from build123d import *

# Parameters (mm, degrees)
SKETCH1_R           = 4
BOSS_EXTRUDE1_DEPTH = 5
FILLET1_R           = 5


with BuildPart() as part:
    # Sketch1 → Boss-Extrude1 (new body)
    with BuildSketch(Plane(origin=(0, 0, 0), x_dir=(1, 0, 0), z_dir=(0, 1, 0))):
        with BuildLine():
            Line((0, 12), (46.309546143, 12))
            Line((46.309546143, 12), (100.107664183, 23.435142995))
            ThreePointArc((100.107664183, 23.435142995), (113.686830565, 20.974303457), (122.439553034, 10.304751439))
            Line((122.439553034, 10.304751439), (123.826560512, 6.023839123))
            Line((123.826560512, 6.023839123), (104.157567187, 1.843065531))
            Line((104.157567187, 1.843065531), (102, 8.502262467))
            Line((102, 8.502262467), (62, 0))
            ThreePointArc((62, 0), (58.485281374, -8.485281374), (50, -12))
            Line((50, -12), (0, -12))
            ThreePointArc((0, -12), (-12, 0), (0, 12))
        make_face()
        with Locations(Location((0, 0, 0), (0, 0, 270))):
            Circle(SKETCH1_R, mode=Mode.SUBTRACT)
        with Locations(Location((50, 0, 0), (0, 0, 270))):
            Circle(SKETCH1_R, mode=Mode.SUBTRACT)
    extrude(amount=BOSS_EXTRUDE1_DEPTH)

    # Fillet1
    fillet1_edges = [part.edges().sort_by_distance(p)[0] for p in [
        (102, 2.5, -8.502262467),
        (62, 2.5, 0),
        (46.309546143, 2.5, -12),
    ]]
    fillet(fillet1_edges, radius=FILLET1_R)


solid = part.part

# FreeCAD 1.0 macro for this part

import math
import FreeCAD as App
import Part
import Sketcher
Q = App.Units.Quantity


def edges_at(feature, points):
    """Names of the edges that pass closest to the given points."""
    edges = feature.Shape.Edges
    near = lambda p: min(range(len(edges)), key=lambda i: edges[i].distToShape(Part.Vertex(*p))[0])
    return sorted({f"Edge{near(p) + 1}" for p in points})

doc = App.newDocument("Part")
body = doc.addObject("PartDesign::Body", "Body")

# Sketch on XZ plane
sketch1 = body.newObject("Sketcher::SketchObject", "Sketch")
sketch1.AttachmentSupport = (doc.getObject("XZ_Plane"), [""])
sketch1.MapMode = "FlatFace"
sketch1.addGeometry(Part.LineSegment(App.Vector(46.3, -12, 0), App.Vector(0, -12, 0)), False)
sketch1.addGeometry(Part.ArcOfCircle(Part.Circle(App.Vector(0, 0, 0), App.Vector(0, 0, 1), 12), math.radians(90), math.radians(270)), False)
sketch1.addGeometry(Part.LineSegment(App.Vector(0, 12, 0), App.Vector(50, 12, 0)), False)
sketch1.addGeometry(Part.ArcOfCircle(Part.Circle(App.Vector(50, 0, 0), App.Vector(0, 0, 1), 12), math.radians(0), math.radians(90)), False)
sketch1.addGeometry(Part.LineSegment(App.Vector(62, 0, 0), App.Vector(102, -8.5, 0)), False)
sketch1.addGeometry(Part.LineSegment(App.Vector(102, -8.5, 0), App.Vector(104.2, -1.8, 0)), False)
sketch1.addGeometry(Part.LineSegment(App.Vector(104.2, -1.8, 0), App.Vector(123.8, -6, 0)), False)
sketch1.addGeometry(Part.LineSegment(App.Vector(123.8, -6, 0), App.Vector(122.4, -10.3, 0)), False)
sketch1.addGeometry(Part.ArcOfCircle(Part.Circle(App.Vector(103.5, -3.7, 0), App.Vector(0, 0, 1), 20), math.radians(-100), math.radians(-19)), False)
sketch1.addGeometry(Part.LineSegment(App.Vector(100.1, -23.4, 0), App.Vector(46.3, -12, 0)), False)
sketch1.addGeometry(Part.Circle(App.Vector(50, 0, 0), App.Vector(0, 0, 1), 4), False)
sketch1.addGeometry(Part.Circle(App.Vector(0, 0, 0), App.Vector(0, 0, 1), 4), False)
sketch1.addConstraint(Sketcher.Constraint("Tangent", 0, 2, 1, 2))
sketch1.addConstraint(Sketcher.Constraint("Tangent", 1, 1, 2, 1))
sketch1.addConstraint(Sketcher.Constraint("Tangent", 2, 2, 3, 2))
sketch1.addConstraint(Sketcher.Constraint("Coincident", 3, 1, 4, 1))
sketch1.addConstraint(Sketcher.Constraint("Coincident", 4, 2, 5, 1))
sketch1.addConstraint(Sketcher.Constraint("Coincident", 5, 2, 6, 1))
sketch1.addConstraint(Sketcher.Constraint("Coincident", 6, 2, 7, 1))
sketch1.addConstraint(Sketcher.Constraint("Coincident", 7, 2, 8, 2))
sketch1.addConstraint(Sketcher.Constraint("Coincident", 8, 1, 9, 1))
sketch1.addConstraint(Sketcher.Constraint("Coincident", 9, 2, 0, 1))
sketch1.addConstraint(Sketcher.Constraint("Horizontal", 0))
sketch1.addConstraint(Sketcher.Constraint("Horizontal", 2))
sketch1.addConstraint(Sketcher.Constraint("Coincident", 1, 3, -1, 1))
sketch1.addConstraint(Sketcher.Constraint("Coincident", 11, 3, -1, 1))
sketch1.addConstraint(Sketcher.Constraint("Coincident", 10, 3, 3, 3))
sketch1.addConstraint(Sketcher.Constraint("Equal", 1, 3))
sketch1.addConstraint(Sketcher.Constraint("Equal", 10, 11))
sketch1.addConstraint(Sketcher.Constraint("PointOnObject", 3, 1, -1))
sketch1.addConstraint(Sketcher.Constraint("Parallel", 4, 6))
sketch1.addConstraint(Sketcher.Constraint("Parallel", 5, 7))
sketch1.addConstraint(Sketcher.Constraint("Parallel", 6, 9))
sketch1.addConstraint(Sketcher.Constraint("Diameter", 10, 8.0))
sketch1.addConstraint(Sketcher.Constraint("Radius", 1, 12.0))
sketch1.addConstraint(Sketcher.Constraint("Radius", 8, 20.0))
sketch1.addConstraint(Sketcher.Constraint("DistanceX", 2, 1, 2, 2, 50.0))
sketch1.addConstraint(Sketcher.Constraint("Angle", 4, Q("-12 deg")))
sketch1.addConstraint(Sketcher.Constraint("Distance", 5, 7.0))
sketch1.addConstraint(Sketcher.Constraint("Distance", 9, 55.0))
sketch1.addConstraint(Sketcher.Constraint("DistanceX", -1, 1, 4, 2, 102.0))
sketch1.addConstraint(Sketcher.Constraint("Distance", 7, 4.5))
sketch1.addConstraint(Sketcher.Constraint("Distance", 6, 20.10841))
sketch1.addConstraint(Sketcher.Constraint("DistanceX", 0, 2, 0, 1, 46.309546))
sketch1.addConstraint(Sketcher.Constraint("DistanceY", 8, 3, -1, 1, 3.733591))
pad1 = body.newObject("PartDesign::Pad", "Pad")
pad1.Profile = sketch1
pad1.Length = 5
pad1.Reversed = True
doc.recompute()

fillet = body.newObject("PartDesign::Fillet", "Fillet")
fillet.Base = (pad1, edges_at(pad1, [(102, 2.5, -8.502), (62, 2.5, 0), (46.31, 2.5, -12)]))
fillet.Radius = 5

doc.recompute()
